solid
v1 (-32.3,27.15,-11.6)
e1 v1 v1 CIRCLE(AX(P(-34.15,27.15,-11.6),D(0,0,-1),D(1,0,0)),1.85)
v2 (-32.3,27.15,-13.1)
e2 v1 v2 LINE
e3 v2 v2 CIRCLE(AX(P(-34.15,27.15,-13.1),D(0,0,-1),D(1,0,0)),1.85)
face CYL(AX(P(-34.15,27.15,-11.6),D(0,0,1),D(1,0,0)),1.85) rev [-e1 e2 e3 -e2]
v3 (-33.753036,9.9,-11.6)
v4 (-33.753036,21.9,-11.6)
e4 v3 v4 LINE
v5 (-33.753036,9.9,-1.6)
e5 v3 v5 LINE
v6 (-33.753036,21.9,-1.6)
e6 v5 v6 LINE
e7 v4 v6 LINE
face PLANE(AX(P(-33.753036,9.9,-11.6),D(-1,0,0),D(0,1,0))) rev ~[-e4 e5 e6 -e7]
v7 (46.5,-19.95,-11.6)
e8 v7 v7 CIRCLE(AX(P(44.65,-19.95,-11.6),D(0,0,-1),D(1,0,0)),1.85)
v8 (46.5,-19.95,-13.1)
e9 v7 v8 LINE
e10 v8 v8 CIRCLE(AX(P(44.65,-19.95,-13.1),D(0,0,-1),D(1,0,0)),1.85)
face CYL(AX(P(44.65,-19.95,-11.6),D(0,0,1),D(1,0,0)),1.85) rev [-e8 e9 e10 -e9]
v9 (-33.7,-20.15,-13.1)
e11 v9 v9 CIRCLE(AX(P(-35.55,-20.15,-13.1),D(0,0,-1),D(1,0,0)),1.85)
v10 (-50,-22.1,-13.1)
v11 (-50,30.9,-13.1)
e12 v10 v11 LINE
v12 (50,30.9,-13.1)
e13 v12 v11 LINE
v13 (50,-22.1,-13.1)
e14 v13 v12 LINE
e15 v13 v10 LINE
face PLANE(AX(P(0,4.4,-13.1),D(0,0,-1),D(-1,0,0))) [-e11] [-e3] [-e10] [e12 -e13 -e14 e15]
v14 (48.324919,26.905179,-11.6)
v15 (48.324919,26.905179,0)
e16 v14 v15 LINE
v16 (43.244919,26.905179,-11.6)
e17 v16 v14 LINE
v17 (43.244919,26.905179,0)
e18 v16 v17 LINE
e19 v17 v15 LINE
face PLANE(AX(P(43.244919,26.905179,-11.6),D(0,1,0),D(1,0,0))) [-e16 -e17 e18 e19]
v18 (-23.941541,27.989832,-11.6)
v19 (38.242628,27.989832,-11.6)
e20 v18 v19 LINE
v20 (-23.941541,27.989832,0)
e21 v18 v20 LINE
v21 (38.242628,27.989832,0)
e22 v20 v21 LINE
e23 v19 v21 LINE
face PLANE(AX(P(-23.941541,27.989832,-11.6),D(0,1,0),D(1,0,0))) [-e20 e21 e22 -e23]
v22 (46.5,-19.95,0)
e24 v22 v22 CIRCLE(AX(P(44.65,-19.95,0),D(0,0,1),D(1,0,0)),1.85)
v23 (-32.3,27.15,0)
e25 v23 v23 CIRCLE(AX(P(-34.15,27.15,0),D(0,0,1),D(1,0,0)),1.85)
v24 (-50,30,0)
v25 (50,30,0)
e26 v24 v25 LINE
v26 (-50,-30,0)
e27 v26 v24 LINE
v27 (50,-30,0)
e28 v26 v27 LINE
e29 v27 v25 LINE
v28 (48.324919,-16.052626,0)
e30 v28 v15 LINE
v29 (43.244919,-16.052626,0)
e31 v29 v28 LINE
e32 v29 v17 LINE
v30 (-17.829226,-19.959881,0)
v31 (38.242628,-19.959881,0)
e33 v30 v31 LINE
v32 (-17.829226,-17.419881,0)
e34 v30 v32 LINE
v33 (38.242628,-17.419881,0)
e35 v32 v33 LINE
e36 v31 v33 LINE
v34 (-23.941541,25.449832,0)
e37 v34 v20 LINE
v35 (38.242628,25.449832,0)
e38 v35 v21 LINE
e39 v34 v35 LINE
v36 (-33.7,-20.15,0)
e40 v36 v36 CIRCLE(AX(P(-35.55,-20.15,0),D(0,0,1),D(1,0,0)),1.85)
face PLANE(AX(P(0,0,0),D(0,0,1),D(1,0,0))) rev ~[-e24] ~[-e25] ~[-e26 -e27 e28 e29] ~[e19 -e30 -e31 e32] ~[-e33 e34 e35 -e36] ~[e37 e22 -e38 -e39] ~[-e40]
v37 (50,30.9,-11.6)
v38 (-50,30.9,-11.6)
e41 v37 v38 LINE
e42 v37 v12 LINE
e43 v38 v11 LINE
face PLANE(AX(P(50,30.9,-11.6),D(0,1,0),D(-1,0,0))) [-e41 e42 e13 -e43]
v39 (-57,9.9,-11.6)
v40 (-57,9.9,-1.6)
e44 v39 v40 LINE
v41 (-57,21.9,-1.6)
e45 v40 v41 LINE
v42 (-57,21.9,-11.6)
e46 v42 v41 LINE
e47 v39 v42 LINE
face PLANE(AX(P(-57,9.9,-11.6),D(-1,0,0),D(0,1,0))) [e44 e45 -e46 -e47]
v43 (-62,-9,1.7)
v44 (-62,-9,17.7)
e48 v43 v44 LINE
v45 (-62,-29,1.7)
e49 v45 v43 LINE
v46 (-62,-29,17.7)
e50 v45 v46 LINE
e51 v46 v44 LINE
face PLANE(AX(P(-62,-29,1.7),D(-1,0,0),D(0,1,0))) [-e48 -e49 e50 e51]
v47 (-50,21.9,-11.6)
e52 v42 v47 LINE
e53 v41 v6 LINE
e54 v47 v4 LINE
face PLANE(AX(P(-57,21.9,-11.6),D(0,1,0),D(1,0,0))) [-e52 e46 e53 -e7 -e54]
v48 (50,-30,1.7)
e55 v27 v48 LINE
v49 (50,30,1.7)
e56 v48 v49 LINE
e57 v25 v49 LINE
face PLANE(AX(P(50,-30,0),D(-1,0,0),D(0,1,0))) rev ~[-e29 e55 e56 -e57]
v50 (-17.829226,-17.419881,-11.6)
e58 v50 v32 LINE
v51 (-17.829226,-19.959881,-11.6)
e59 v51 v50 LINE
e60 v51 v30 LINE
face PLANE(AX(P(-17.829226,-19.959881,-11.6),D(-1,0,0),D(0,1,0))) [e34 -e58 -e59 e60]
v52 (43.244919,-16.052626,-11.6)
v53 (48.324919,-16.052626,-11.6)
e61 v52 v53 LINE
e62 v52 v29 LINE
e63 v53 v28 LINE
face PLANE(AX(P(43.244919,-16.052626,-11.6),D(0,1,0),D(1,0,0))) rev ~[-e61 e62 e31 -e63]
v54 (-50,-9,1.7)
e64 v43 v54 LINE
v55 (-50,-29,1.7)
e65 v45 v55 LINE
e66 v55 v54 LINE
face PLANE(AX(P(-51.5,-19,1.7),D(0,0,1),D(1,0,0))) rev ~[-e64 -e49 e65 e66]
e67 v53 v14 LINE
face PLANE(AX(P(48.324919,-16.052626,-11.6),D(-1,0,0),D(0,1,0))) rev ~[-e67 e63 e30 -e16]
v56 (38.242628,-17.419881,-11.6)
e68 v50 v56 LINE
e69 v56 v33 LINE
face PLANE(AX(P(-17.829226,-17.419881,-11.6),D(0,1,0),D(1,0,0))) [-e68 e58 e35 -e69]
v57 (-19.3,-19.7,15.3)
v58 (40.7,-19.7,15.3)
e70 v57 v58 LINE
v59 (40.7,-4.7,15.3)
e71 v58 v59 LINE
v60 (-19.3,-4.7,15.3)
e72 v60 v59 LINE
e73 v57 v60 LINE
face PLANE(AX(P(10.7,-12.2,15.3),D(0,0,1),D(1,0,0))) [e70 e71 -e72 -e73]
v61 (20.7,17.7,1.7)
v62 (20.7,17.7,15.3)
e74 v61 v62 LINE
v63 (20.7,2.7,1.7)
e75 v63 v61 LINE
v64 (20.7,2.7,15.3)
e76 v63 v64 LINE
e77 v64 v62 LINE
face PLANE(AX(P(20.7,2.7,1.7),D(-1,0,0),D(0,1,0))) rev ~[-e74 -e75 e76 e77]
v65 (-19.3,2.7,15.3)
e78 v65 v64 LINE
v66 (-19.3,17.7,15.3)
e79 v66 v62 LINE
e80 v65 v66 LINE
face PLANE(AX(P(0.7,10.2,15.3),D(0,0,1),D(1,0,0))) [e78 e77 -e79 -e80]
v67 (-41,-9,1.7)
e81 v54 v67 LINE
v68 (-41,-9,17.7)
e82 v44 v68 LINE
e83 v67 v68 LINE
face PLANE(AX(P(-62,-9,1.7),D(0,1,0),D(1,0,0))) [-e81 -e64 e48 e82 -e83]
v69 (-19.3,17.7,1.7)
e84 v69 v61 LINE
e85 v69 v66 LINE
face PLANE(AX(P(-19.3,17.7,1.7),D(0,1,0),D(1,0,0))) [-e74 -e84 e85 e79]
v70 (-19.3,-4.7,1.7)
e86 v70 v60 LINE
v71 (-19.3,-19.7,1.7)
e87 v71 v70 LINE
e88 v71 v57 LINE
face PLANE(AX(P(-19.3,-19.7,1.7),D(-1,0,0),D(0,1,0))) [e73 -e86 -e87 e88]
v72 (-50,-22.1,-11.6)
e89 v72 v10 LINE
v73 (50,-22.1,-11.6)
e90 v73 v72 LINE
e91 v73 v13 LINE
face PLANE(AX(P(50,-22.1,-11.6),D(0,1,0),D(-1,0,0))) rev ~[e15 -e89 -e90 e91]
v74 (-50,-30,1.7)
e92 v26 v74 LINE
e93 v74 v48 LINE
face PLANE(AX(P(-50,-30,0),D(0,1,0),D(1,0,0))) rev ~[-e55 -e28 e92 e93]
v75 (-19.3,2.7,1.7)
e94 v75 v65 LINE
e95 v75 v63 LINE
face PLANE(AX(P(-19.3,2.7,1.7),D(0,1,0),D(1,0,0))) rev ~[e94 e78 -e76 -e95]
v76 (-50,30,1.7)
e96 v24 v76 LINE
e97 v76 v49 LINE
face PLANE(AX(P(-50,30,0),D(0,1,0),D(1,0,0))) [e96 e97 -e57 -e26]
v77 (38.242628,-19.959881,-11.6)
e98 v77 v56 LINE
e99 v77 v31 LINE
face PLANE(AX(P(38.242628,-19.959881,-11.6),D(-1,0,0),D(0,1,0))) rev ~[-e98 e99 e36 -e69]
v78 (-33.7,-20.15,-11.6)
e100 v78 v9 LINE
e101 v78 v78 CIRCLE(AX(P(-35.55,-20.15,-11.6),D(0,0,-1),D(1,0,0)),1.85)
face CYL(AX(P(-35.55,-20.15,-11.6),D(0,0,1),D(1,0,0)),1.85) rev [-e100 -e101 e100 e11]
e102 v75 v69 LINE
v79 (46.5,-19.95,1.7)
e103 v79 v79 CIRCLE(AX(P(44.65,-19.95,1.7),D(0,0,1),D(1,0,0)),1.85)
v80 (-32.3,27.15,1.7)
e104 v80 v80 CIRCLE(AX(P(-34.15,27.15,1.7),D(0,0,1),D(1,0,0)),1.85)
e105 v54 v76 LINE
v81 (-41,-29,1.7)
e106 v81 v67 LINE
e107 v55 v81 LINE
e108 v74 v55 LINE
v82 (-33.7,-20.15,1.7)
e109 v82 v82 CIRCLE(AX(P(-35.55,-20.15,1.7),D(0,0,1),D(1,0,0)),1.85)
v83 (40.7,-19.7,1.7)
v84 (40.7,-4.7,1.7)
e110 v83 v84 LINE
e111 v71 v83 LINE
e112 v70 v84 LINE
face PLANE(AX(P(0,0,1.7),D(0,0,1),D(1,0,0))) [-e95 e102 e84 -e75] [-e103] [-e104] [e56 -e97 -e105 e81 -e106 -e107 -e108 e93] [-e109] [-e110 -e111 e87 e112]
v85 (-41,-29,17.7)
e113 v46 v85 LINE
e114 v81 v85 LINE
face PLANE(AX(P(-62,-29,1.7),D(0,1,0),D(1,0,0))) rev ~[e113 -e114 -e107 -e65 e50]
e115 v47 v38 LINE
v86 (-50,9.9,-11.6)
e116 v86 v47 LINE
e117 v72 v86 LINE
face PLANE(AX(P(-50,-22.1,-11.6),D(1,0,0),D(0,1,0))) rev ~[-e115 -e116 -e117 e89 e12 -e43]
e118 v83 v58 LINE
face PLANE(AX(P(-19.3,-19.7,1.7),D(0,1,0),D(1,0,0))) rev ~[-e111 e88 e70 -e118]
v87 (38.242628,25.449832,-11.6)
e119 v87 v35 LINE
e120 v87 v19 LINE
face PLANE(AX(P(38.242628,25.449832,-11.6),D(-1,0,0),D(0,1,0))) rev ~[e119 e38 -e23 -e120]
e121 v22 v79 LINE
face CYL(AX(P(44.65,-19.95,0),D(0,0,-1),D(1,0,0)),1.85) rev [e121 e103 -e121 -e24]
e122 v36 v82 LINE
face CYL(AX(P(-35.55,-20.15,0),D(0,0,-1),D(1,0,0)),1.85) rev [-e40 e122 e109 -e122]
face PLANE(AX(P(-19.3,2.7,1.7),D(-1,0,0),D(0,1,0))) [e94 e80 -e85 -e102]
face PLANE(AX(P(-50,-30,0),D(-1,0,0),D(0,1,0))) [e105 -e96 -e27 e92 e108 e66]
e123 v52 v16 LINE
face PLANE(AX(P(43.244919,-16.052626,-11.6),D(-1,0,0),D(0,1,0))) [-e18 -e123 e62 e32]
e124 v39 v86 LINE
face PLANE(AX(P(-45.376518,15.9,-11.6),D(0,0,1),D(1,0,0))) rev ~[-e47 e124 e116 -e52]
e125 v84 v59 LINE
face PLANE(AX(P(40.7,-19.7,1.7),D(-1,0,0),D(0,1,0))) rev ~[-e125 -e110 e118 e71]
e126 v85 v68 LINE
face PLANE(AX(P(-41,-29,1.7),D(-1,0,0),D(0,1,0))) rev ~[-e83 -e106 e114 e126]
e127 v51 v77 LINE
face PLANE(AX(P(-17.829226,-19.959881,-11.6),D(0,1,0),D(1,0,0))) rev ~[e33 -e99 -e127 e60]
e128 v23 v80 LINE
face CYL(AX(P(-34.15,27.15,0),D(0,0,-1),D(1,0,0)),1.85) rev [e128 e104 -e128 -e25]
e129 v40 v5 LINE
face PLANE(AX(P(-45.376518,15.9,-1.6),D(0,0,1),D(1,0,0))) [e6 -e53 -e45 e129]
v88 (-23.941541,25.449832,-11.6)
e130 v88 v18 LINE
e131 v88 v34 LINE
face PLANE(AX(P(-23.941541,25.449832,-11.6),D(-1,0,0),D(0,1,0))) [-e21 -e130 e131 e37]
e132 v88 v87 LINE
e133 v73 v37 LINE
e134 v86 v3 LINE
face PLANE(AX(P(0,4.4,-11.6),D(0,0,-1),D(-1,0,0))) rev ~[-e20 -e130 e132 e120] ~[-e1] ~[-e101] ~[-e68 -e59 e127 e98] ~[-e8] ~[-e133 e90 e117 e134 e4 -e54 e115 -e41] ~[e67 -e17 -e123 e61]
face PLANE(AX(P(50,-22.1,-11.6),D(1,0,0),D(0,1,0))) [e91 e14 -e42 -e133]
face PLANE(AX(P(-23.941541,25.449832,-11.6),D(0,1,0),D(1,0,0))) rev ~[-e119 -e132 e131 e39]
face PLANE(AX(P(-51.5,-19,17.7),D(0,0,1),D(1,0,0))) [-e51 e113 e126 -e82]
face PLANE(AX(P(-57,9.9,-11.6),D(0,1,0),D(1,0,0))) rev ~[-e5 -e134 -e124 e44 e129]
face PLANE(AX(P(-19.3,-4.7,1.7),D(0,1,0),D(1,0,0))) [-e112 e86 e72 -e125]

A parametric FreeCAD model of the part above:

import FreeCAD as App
import Part
import Sketcher
from FreeCAD import Vector
Q = App.Units.Quantity


def add_polygon(sketch, points):
    """Adds a closed chain of lines whose ends are joined by coincident constraints."""
    first, n = sketch.GeometryCount, len(points)
    for a, b in zip(points, points[1:] + points[:1]):
        sketch.addGeometry(Part.LineSegment(App.Vector(*a, 0), App.Vector(*b, 0)), False)
    for i in range(n):
        sketch.addConstraint(Sketcher.Constraint("Coincident", first + i, 2, first + (i + 1) % n, 1))

doc = App.newDocument("Part")
params = doc.addObject("Spreadsheet::Sheet", "Params")
for row, (alias, value) in enumerate([
    ("sketch1_diameter", "3.7 mm"),
    ("sketch1_width", "100 mm"),
    ("sketch1_height", "60 mm"),
    ("pad1_length", "1.7 mm"),
    ("sketch2_width", "60 mm"),
    ("sketch2_width2", "40 mm"),
    ("sketch2_height", "15 mm"),
    ("pad2_length", "13.6 mm"),
    ("sketch3_diameter", "3.7 mm"),
    ("sketch3_width", "100 mm"),
    ("sketch3_height", "53 mm"),
    ("pad3_length", "1.5 mm"),
    ("sketch4_width", "5.08 mm"),
    ("sketch4_height", "2.54 mm"),
    ("pad4_length", "11.6 mm"),
    ("sketch5_width", "21 mm"),
    ("sketch5_height", "20 mm"),
    ("pad5_length", "16 mm"),
    ("sketch6_height", "12 mm"),
    ("pad6_length", "10 mm"),
], start=1):
    params.set(f"A{row}", alias)
    params.set(f"B{row}", "=" + value)
    params.setAlias(f"B{row}", alias)

body = doc.addObject("PartDesign::Body", "Body")

sketch1 = body.newObject("Sketcher::SketchObject", "Sketch")
sketch1.AttachmentSupport = (doc.getObject("XY_Plane"), [""])
sketch1.MapMode = "FlatFace"
add_polygon(sketch1, [(-50, 30), (-50, -30), (50, -30), (50, 30)])
sketch1.addGeometry(Part.Circle(Vector(-35.55, -20.15, 0), Vector(0, 0, 1), 1.85), False)
sketch1.addGeometry(Part.Circle(Vector(44.65, -19.95, 0), Vector(0, 0, 1), 1.85), False)
sketch1.addGeometry(Part.Circle(Vector(-34.15, 27.15, 0), Vector(0, 0, 1), 1.85), False)
sketch1.addConstraint([
    Sketcher.Constraint("Vertical", 0),
    Sketcher.Constraint("Horizontal", 1),
    Sketcher.Constraint("Vertical", 2),
    Sketcher.Constraint("Horizontal", 3),
    Sketcher.Constraint("Equal", 4, 5),
    Sketcher.Constraint("Equal", 5, 6),
    Sketcher.Constraint("Symmetric", 0, 2, 2, 2, -1, 1),
    Sketcher.Constraint("Diameter", 4, Q("3.7 mm")),
    Sketcher.Constraint("DistanceX", 1, 1, 1, 2, Q("100 mm")),
    Sketcher.Constraint("DistanceY", 0, 2, 0, 1, Q("60 mm")),
    Sketcher.Constraint("DistanceX", 4, 3, 5, 3, Q("80.2 mm")),
    Sketcher.Constraint("DistanceY", 4, 3, 5, 3, Q("0.2 mm")),
    Sketcher.Constraint("DistanceX", 4, 3, 6, 3, Q("1.4 mm")),
    Sketcher.Constraint("DistanceY", 4, 3, 6, 3, Q("47.3 mm")),
    Sketcher.Constraint("DistanceX", 4, 3, -1, 1, Q("35.55 mm")),
    Sketcher.Constraint("DistanceY", 4, 3, -1, 1, Q("20.15 mm")),
])
sketch1.setExpression("Constraints[11]", "Params.sketch1_diameter")
sketch1.setExpression("Constraints[12]", "Params.sketch1_width")
sketch1.setExpression("Constraints[13]", "Params.sketch1_height")
pad1 = body.newObject("PartDesign::Pad", "Pad")
pad1.Profile = sketch1
pad1.setExpression("Length", "Params.pad1_length")

sketch2 = body.newObject("Sketcher::SketchObject", "Sketch001")
sketch2.AttachmentSupport = (doc.getObject("XY_Plane"), [""])
sketch2.MapMode = "FlatFace"
sketch2.AttachmentOffset = App.Placement(Vector(0, 0, 1.7), App.Rotation())
add_polygon(sketch2, [(-19.3, -4.7), (-19.3, -19.7), (40.7, -19.7), (40.7, -4.7)])
add_polygon(sketch2, [(-19.3, 17.7), (-19.3, 2.7), (20.7, 2.7), (20.7, 17.7)])
sketch2.addConstraint([
    Sketcher.Constraint("Vertical", 0),
    Sketcher.Constraint("Horizontal", 1),
    Sketcher.Constraint("Vertical", 2),
    Sketcher.Constraint("Horizontal", 3),
    Sketcher.Constraint("Vertical", 4),
    Sketcher.Constraint("Horizontal", 5),
    Sketcher.Constraint("Vertical", 6),
    Sketcher.Constraint("Horizontal", 7),
    Sketcher.Constraint("Vertical", 3, 2, 4, 2),
    Sketcher.Constraint("Equal", 2, 4),
    Sketcher.Constraint("DistanceX", 1, 1, 1, 2, Q("60 mm")),
    Sketcher.Constraint("DistanceX", 5, 1, 5, 2, Q("40 mm")),
    Sketcher.Constraint("DistanceY", 0, 2, 0, 1, Q("15 mm")),
    Sketcher.Constraint("DistanceX", 0, 2, -1, 1, Q("19.3 mm")),
    Sketcher.Constraint("DistanceY", 0, 2, -1, 1, Q("19.7 mm")),
    Sketcher.Constraint("DistanceY", -1, 1, 4, 2, Q("2.7 mm")),
])
sketch2.setExpression("Constraints[18]", "Params.sketch2_width")
sketch2.setExpression("Constraints[19]", "Params.sketch2_width2")
sketch2.setExpression("Constraints[20]", "Params.sketch2_height")
pad2 = body.newObject("PartDesign::Pad", "Pad001")
pad2.Profile = sketch2
pad2.setExpression("Length", "Params.pad2_length")
body2 = doc.addObject("PartDesign::Body", "Body001")

sketch3 = body2.newObject("Sketcher::SketchObject", "Sketch002")
sketch3.AttachmentSupport = (doc.getObject("XY_Plane001"), [""])
sketch3.MapMode = "FlatFace"
sketch3.AttachmentOffset = App.Placement(Vector(0, 0, -11.6), App.Rotation())
add_polygon(sketch3, [(50, 30.9), (50, -22.1), (-50, -22.1), (-50, 30.9)])
sketch3.addGeometry(Part.Circle(Vector(44.65, -19.95, 0), Vector(0, 0, 1), 1.85), False)
sketch3.addGeometry(Part.Circle(Vector(-35.55, -20.15, 0), Vector(0, 0, 1), 1.85), False)
sketch3.addGeometry(Part.Circle(Vector(-34.15, 27.15, 0), Vector(0, 0, 1), 1.85), False)
sketch3.addConstraint([
    Sketcher.Constraint("Vertical", 0),
    Sketcher.Constraint("Horizontal", 1),
    Sketcher.Constraint("Vertical", 2),
    Sketcher.Constraint("Horizontal", 3),
    Sketcher.Constraint("Equal", 4, 5),
    Sketcher.Constraint("Equal", 5, 6),
    Sketcher.Constraint("Diameter", 4, Q("3.7 mm")),
    Sketcher.Constraint("DistanceX", 1, 2, 1, 1, Q("100 mm")),
    Sketcher.Constraint("DistanceY", 0, 2, 0, 1, Q("53 mm")),
    Sketcher.Constraint("DistanceX", -1, 1, 0, 2, Q("50 mm")),
    Sketcher.Constraint("DistanceY", 0, 2, -1, 1, Q("22.1 mm")),
    Sketcher.Constraint("DistanceX", 5, 3, 4, 3, Q("80.2 mm")),
    Sketcher.Constraint("DistanceY", 5, 3, 4, 3, Q("0.2 mm")),
    Sketcher.Constraint("DistanceX", 5, 3, 6, 3, Q("1.4 mm")),
    Sketcher.Constraint("DistanceY", 5, 3, 6, 3, Q("47.3 mm")),
    Sketcher.Constraint("DistanceX", -1, 1, 4, 3, Q("44.65 mm")),
    Sketcher.Constraint("DistanceY", 4, 3, -1, 1, Q("19.95 mm")),
])
sketch3.setExpression("Constraints[10]", "Params.sketch3_diameter")
sketch3.setExpression("Constraints[11]", "Params.sketch3_width")
sketch3.setExpression("Constraints[12]", "Params.sketch3_height")
pad3 = body2.newObject("PartDesign::Pad", "Pad002")
pad3.Profile = sketch3
pad3.setExpression("Length", "Params.pad3_length")
pad3.Reversed = True
body.AllowCompound = True
doc.recompute()

boolean = body.newObject("PartDesign::Boolean", "Boolean")
boolean.Type = "Fuse"
boolean.addObjects([body2])

sketch4 = body.newObject("Sketcher::SketchObject", "Sketch003")
sketch4.AttachmentSupport = (doc.getObject("XY_Plane"), [""])
sketch4.MapMode = "FlatFace"
sketch4.AttachmentOffset = App.Placement(Vector(0, 0, -11.6), App.Rotation())
add_polygon(sketch4, [(-23.941541, 27.989832), (-23.941541, 25.449832), (38.242628, 25.449832), (38.242628, 27.989832)])
add_polygon(sketch4, [(43.244919, 26.905179), (43.244919, -16.052626), (48.324919, -16.052626), (48.324919, 26.905179)])
add_polygon(sketch4, [(-17.829226, -17.419881), (-17.829226, -19.959881), (38.242628, -19.959881), (38.242628, -17.419881)])
sketch4.addConstraint([
    Sketcher.Constraint("Vertical", 0),
    Sketcher.Constraint("Horizontal", 1),
    Sketcher.Constraint("Vertical", 2),
    Sketcher.Constraint("Horizontal", 3),
    Sketcher.Constraint("Vertical", 4),
    Sketcher.Constraint("Horizontal", 5),
    Sketcher.Constraint("Vertical", 6),
    Sketcher.Constraint("Horizontal", 7),
    Sketcher.Constraint("Vertical", 8),
    Sketcher.Constraint("Horizontal", 9),
    Sketcher.Constraint("Vertical", 10),
    Sketcher.Constraint("Horizontal", 11),
    Sketcher.Constraint("Vertical", 2, 2, 9, 2),
    Sketcher.Constraint("Equal", 2, 8),
    Sketcher.Constraint("DistanceX", 5, 1, 5, 2, Q("5.08 mm")),
    Sketcher.Constraint("DistanceY", 0, 2, 0, 1, Q("2.54 mm")),
    Sketcher.Constraint("DistanceX", 1, 1, 1, 2, Q("62.184169 mm")),
    Sketcher.Constraint("DistanceX", 9, 1, 9, 2, Q("56.071855 mm")),
    Sketcher.Constraint("DistanceY", 4, 2, 4, 1, Q("42.957805 mm")),
    Sketcher.Constraint("DistanceX", 0, 2, -1, 1, Q("23.941541 mm")),
    Sketcher.Constraint("DistanceX", -1, 1, 4, 2, Q("43.244919 mm")),
    Sketcher.Constraint("DistanceY", -1, 1, 6, 2, Q("26.905179 mm")),
    Sketcher.Constraint("DistanceY", 8, 2, -1, 1, Q("19.959881 mm")),
    Sketcher.Constraint("DistanceY", 4, 2, 1, 2, Q("41.502458 mm")),
])
sketch4.setExpression("Constraints[26]", "Params.sketch4_width")
sketch4.setExpression("Constraints[27]", "Params.sketch4_height")
pad4 = body.newObject("PartDesign::Pad", "Pad003")
pad4.Profile = sketch4
pad4.setExpression("Length", "Params.pad4_length")

sketch5 = body.newObject("Sketcher::SketchObject", "Sketch004")
sketch5.AttachmentSupport = (doc.getObject("XY_Plane"), [""])
sketch5.MapMode = "FlatFace"
sketch5.AttachmentOffset = App.Placement(Vector(0, 0, 1.7), App.Rotation())
add_polygon(sketch5, [(-62, -9), (-62, -29), (-41, -29), (-41, -9)])
sketch5.addConstraint([
    Sketcher.Constraint("Vertical", 0),
    Sketcher.Constraint("Horizontal", 1),
    Sketcher.Constraint("Vertical", 2),
    Sketcher.Constraint("Horizontal", 3),
    Sketcher.Constraint("DistanceX", 1, 1, 1, 2, Q("21 mm")),
    Sketcher.Constraint("DistanceY", 0, 2, 0, 1, Q("20 mm")),
    Sketcher.Constraint("DistanceX", 0, 2, -1, 1, Q("62 mm")),
    Sketcher.Constraint("DistanceY", 0, 2, -1, 1, Q("29 mm")),
])
sketch5.setExpression("Constraints[8]", "Params.sketch5_width")
sketch5.setExpression("Constraints[9]", "Params.sketch5_height")
pad5 = body.newObject("PartDesign::Pad", "Pad004")
pad5.Profile = sketch5
pad5.setExpression("Length", "Params.pad5_length")

sketch6 = body.newObject("Sketcher::SketchObject", "Sketch005")
sketch6.AttachmentSupport = (doc.getObject("XY_Plane"), [""])
sketch6.MapMode = "FlatFace"
sketch6.AttachmentOffset = App.Placement(Vector(0, 0, -11.6), App.Rotation())
add_polygon(sketch6, [(-57, 21.9), (-57, 9.9), (-33.753036, 9.9), (-33.753036, 21.9)])
sketch6.addConstraint([
    Sketcher.Constraint("Vertical", 0),
    Sketcher.Constraint("Horizontal", 1),
    Sketcher.Constraint("Vertical", 2),
    Sketcher.Constraint("Horizontal", 3),
    Sketcher.Constraint("DistanceY", 0, 2, 0, 1, Q("12 mm")),
    Sketcher.Constraint("DistanceX", 0, 2, -1, 1, Q("57 mm")),
    Sketcher.Constraint("DistanceY", -1, 1, 0, 2, Q("9.9 mm")),
    Sketcher.Constraint("DistanceX", 1, 1, 1, 2, Q("23.246964 mm")),
])
sketch6.setExpression("Constraints[8]", "Params.sketch6_height")
pad6 = body.newObject("PartDesign::Pad", "Pad005")
pad6.Profile = sketch6
pad6.setExpression("Length", "Params.pad6_length")

doc.recompute()
